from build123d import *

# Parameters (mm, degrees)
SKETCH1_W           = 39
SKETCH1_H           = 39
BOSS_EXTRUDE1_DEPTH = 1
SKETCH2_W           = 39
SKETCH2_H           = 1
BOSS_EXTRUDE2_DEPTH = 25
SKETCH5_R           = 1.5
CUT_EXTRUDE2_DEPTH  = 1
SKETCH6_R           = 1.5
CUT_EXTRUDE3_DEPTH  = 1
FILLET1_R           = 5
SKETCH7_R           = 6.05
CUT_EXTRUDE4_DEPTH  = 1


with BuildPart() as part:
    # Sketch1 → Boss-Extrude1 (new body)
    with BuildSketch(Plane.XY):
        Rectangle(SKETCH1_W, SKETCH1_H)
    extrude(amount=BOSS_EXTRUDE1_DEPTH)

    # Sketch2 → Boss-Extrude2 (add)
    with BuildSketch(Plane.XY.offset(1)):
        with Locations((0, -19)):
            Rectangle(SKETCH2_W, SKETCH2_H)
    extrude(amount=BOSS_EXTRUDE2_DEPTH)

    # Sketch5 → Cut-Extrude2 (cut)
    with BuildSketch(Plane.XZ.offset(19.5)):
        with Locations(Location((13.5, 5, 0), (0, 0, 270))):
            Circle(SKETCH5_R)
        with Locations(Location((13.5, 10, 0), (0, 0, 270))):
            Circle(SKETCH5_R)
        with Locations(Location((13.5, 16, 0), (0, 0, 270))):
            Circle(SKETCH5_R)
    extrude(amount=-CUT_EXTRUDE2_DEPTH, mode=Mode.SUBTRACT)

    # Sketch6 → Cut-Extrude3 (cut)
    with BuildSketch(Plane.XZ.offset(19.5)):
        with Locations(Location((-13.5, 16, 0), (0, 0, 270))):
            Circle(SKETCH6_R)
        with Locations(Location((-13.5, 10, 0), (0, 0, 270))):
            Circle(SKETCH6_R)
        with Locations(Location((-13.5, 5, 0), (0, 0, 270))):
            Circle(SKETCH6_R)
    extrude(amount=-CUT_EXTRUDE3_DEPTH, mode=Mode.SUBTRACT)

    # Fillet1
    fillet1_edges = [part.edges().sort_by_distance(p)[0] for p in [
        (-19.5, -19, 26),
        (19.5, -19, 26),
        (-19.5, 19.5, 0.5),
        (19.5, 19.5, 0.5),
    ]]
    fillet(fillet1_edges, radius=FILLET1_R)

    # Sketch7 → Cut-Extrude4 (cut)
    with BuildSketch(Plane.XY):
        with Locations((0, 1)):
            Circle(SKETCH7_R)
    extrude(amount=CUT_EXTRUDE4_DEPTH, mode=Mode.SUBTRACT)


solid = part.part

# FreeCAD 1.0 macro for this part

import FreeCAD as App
import Part
import Sketcher

V = App.Vector
Q = App.Units.Quantity


def edges_at(feature, points):
    """Names of the edges that pass closest to the given points."""
    edges = feature.Shape.Edges
    near = lambda p: min(range(len(edges)), key=lambda i: edges[i].distToShape(Part.Vertex(*p))[0])
    return sorted({f"Edge{near(p) + 1}" for p in points})


def add_polygon(sketch, points):
    """Adds a closed chain of lines whose ends are joined by coincident constraints."""
    first, n = sketch.GeometryCount, len(points)
    for a, b in zip(points, points[1:] + points[:1]):
        sketch.addGeometry(Part.LineSegment(App.Vector(*a, 0), App.Vector(*b, 0)), False)
    for i in range(n):
        sketch.addConstraint(Sketcher.Constraint("Coincident", first + i, 2, first + (i + 1) % n, 1))

doc = App.newDocument("Part")
body = doc.addObject("PartDesign::Body", "Body")

# Sketch on XY plane
sketch1 = body.newObject("Sketcher::SketchObject", "Sketch")
sketch1.AttachmentSupport = (doc.getObject("XY_Plane"), [""])
sketch1.MapMode = "FlatFace"
add_polygon(sketch1, [(-19.5, 19.5), (-19.5, -19.5), (19.5, -19.5), (19.5, 19.5)])  # lines 0-3
sketch1.addConstraint(Sketcher.Constraint("Vertical", 0))
sketch1.addConstraint(Sketcher.Constraint("Horizontal", 1))
sketch1.addConstraint(Sketcher.Constraint("Vertical", 2))
sketch1.addConstraint(Sketcher.Constraint("Horizontal", 3))
sketch1.addConstraint(Sketcher.Constraint("Symmetric", 0, 2, 2, 2, -1, 1))
sketch1.addConstraint(Sketcher.Constraint("Equal", 3, 0))
sketch1.addConstraint(Sketcher.Constraint("DistanceX", 1, 1, 1, 2, Q("39 mm")))
pad1 = body.newObject("PartDesign::Pad", "Pad")
pad1.Profile = sketch1
pad1.Length = 1

# Sketch on XY plane
sketch2 = body.newObject("Sketcher::SketchObject", "Sketch001")
sketch2.AttachmentSupport = (doc.getObject("XY_Plane"), [""])
sketch2.MapMode = "FlatFace"
sketch2.AttachmentOffset = App.Placement(V(0, 0, 1), App.Rotation())
add_polygon(sketch2, [(-19.5, -18.5), (-19.5, -19.5), (19.5, -19.5), (19.5, -18.5)])  # lines 0-3
sketch2.addConstraint(Sketcher.Constraint("Vertical", 0))
sketch2.addConstraint(Sketcher.Constraint("Horizontal", 1))
sketch2.addConstraint(Sketcher.Constraint("Vertical", 2))
sketch2.addConstraint(Sketcher.Constraint("Horizontal", 3))
sketch2.addConstraint(Sketcher.Constraint("DistanceX", 1, 1, 1, 2, Q("39 mm")))
sketch2.addConstraint(Sketcher.Constraint("DistanceY", 0, 2, 0, 1, Q("1 mm")))
sketch2.addConstraint(Sketcher.Constraint("DistanceX", 0, 2, -1, 1, Q("19.5 mm")))
sketch2.addConstraint(Sketcher.Constraint("DistanceY", 0, 2, -1, 1, Q("19.5 mm")))
pad2 = body.newObject("PartDesign::Pad", "Pad001")
pad2.Profile = sketch2
pad2.Length = 25

# Sketch on XZ plane
sketch3 = body.newObject("Sketcher::SketchObject", "Sketch002")
sketch3.AttachmentSupport = (doc.getObject("XZ_Plane"), [""])
sketch3.MapMode = "FlatFace"
sketch3.AttachmentOffset = App.Placement(V(0, 0, 19.5), App.Rotation())
sketch3.addGeometry(Part.Circle(V(13.5, 5, 0), V(0, 0, 1), 1.5), False)
sketch3.addGeometry(Part.Circle(V(13.5, 10, 0), V(0, 0, 1), 1.5), False)
sketch3.addGeometry(Part.Circle(V(13.5, 16, 0), V(0, 0, 1), 1.5), False)
sketch3.addConstraint(Sketcher.Constraint("Equal", 0, 1))
sketch3.addConstraint(Sketcher.Constraint("Equal", 1, 2))
sketch3.addConstraint(Sketcher.Constraint("Vertical", 0, 3, 1, 3))
sketch3.addConstraint(Sketcher.Constraint("Vertical", 1, 3, 2, 3))
sketch3.addConstraint(Sketcher.Constraint("Diameter", 0, Q("3 mm")))
sketch3.addConstraint(Sketcher.Constraint("DistanceY", -1, 1, 0, 3, Q("5 mm")))
sketch3.addConstraint(Sketcher.Constraint("DistanceY", -1, 1, 1, 3, Q("10 mm")))
sketch3.addConstraint(Sketcher.Constraint("DistanceY", -1, 1, 2, 3, Q("16 mm")))
sketch3.addConstraint(Sketcher.Constraint("DistanceX", -1, 1, 0, 3, Q("13.5 mm")))
pocket1 = body.newObject("PartDesign::Pocket", "Pocket")
pocket1.Profile = sketch3
pocket1.Length = 1

# Sketch on XZ plane
sketch4 = body.newObject("Sketcher::SketchObject", "Sketch003")
sketch4.AttachmentSupport = (doc.getObject("XZ_Plane"), [""])
sketch4.MapMode = "FlatFace"
sketch4.AttachmentOffset = App.Placement(V(0, 0, 19.5), App.Rotation())
sketch4.addGeometry(Part.Circle(V(-13.5, 16, 0), V(0, 0, 1), 1.5), False)
sketch4.addGeometry(Part.Circle(V(-13.5, 10, 0), V(0, 0, 1), 1.5), False)
sketch4.addGeometry(Part.Circle(V(-13.5, 5, 0), V(0, 0, 1), 1.5), False)
sketch4.addConstraint(Sketcher.Constraint("Equal", 0, 1))
sketch4.addConstraint(Sketcher.Constraint("Equal", 1, 2))
sketch4.addConstraint(Sketcher.Constraint("Vertical", 0, 3, 1, 3))
sketch4.addConstraint(Sketcher.Constraint("Vertical", 1, 3, 2, 3))
sketch4.addConstraint(Sketcher.Constraint("Diameter", 0, Q("3 mm")))
sketch4.addConstraint(Sketcher.Constraint("DistanceY", -1, 1, 0, 3, Q("16 mm")))
sketch4.addConstraint(Sketcher.Constraint("DistanceY", -1, 1, 1, 3, Q("10 mm")))
sketch4.addConstraint(Sketcher.Constraint("DistanceY", -1, 1, 2, 3, Q("5 mm")))
sketch4.addConstraint(Sketcher.Constraint("DistanceX", 0, 3, -1, 1, Q("13.5 mm")))
pocket2 = body.newObject("PartDesign::Pocket", "Pocket001")
pocket2.Profile = sketch4
pocket2.Length = 1
doc.recompute()

fillet = body.newObject("PartDesign::Fillet", "Fillet")
fillet.Base = (pocket2, edges_at(pocket2, [
    (-19.5, -19, 26),
    (19.5, -19, 26),
    (-19.5, 19.5, 0.5),
    (19.5, 19.5, 0.5),
]))
fillet.Radius = 5

# Sketch on XY plane
sketch5 = body.newObject("Sketcher::SketchObject", "Sketch004")
sketch5.AttachmentSupport = (doc.getObject("XY_Plane"), [""])
sketch5.MapMode = "FlatFace"
sketch5.addGeometry(Part.Circle(V(0, 1, 0), V(0, 0, 1), 6.05), False)
sketch5.addConstraint(Sketcher.Constraint("PointOnObject", 0, 3, -2))
sketch5.addConstraint(Sketcher.Constraint("Diameter", 0, Q("12.1 mm")))
sketch5.addConstraint(Sketcher.Constraint("DistanceY", -1, 1, 0, 3, Q("1 mm")))
pocket3 = body.newObject("PartDesign::Pocket", "Pocket002")
pocket3.Profile = sketch5
pocket3.Length = 1
pocket3.Reversed = True

doc.recompute()
